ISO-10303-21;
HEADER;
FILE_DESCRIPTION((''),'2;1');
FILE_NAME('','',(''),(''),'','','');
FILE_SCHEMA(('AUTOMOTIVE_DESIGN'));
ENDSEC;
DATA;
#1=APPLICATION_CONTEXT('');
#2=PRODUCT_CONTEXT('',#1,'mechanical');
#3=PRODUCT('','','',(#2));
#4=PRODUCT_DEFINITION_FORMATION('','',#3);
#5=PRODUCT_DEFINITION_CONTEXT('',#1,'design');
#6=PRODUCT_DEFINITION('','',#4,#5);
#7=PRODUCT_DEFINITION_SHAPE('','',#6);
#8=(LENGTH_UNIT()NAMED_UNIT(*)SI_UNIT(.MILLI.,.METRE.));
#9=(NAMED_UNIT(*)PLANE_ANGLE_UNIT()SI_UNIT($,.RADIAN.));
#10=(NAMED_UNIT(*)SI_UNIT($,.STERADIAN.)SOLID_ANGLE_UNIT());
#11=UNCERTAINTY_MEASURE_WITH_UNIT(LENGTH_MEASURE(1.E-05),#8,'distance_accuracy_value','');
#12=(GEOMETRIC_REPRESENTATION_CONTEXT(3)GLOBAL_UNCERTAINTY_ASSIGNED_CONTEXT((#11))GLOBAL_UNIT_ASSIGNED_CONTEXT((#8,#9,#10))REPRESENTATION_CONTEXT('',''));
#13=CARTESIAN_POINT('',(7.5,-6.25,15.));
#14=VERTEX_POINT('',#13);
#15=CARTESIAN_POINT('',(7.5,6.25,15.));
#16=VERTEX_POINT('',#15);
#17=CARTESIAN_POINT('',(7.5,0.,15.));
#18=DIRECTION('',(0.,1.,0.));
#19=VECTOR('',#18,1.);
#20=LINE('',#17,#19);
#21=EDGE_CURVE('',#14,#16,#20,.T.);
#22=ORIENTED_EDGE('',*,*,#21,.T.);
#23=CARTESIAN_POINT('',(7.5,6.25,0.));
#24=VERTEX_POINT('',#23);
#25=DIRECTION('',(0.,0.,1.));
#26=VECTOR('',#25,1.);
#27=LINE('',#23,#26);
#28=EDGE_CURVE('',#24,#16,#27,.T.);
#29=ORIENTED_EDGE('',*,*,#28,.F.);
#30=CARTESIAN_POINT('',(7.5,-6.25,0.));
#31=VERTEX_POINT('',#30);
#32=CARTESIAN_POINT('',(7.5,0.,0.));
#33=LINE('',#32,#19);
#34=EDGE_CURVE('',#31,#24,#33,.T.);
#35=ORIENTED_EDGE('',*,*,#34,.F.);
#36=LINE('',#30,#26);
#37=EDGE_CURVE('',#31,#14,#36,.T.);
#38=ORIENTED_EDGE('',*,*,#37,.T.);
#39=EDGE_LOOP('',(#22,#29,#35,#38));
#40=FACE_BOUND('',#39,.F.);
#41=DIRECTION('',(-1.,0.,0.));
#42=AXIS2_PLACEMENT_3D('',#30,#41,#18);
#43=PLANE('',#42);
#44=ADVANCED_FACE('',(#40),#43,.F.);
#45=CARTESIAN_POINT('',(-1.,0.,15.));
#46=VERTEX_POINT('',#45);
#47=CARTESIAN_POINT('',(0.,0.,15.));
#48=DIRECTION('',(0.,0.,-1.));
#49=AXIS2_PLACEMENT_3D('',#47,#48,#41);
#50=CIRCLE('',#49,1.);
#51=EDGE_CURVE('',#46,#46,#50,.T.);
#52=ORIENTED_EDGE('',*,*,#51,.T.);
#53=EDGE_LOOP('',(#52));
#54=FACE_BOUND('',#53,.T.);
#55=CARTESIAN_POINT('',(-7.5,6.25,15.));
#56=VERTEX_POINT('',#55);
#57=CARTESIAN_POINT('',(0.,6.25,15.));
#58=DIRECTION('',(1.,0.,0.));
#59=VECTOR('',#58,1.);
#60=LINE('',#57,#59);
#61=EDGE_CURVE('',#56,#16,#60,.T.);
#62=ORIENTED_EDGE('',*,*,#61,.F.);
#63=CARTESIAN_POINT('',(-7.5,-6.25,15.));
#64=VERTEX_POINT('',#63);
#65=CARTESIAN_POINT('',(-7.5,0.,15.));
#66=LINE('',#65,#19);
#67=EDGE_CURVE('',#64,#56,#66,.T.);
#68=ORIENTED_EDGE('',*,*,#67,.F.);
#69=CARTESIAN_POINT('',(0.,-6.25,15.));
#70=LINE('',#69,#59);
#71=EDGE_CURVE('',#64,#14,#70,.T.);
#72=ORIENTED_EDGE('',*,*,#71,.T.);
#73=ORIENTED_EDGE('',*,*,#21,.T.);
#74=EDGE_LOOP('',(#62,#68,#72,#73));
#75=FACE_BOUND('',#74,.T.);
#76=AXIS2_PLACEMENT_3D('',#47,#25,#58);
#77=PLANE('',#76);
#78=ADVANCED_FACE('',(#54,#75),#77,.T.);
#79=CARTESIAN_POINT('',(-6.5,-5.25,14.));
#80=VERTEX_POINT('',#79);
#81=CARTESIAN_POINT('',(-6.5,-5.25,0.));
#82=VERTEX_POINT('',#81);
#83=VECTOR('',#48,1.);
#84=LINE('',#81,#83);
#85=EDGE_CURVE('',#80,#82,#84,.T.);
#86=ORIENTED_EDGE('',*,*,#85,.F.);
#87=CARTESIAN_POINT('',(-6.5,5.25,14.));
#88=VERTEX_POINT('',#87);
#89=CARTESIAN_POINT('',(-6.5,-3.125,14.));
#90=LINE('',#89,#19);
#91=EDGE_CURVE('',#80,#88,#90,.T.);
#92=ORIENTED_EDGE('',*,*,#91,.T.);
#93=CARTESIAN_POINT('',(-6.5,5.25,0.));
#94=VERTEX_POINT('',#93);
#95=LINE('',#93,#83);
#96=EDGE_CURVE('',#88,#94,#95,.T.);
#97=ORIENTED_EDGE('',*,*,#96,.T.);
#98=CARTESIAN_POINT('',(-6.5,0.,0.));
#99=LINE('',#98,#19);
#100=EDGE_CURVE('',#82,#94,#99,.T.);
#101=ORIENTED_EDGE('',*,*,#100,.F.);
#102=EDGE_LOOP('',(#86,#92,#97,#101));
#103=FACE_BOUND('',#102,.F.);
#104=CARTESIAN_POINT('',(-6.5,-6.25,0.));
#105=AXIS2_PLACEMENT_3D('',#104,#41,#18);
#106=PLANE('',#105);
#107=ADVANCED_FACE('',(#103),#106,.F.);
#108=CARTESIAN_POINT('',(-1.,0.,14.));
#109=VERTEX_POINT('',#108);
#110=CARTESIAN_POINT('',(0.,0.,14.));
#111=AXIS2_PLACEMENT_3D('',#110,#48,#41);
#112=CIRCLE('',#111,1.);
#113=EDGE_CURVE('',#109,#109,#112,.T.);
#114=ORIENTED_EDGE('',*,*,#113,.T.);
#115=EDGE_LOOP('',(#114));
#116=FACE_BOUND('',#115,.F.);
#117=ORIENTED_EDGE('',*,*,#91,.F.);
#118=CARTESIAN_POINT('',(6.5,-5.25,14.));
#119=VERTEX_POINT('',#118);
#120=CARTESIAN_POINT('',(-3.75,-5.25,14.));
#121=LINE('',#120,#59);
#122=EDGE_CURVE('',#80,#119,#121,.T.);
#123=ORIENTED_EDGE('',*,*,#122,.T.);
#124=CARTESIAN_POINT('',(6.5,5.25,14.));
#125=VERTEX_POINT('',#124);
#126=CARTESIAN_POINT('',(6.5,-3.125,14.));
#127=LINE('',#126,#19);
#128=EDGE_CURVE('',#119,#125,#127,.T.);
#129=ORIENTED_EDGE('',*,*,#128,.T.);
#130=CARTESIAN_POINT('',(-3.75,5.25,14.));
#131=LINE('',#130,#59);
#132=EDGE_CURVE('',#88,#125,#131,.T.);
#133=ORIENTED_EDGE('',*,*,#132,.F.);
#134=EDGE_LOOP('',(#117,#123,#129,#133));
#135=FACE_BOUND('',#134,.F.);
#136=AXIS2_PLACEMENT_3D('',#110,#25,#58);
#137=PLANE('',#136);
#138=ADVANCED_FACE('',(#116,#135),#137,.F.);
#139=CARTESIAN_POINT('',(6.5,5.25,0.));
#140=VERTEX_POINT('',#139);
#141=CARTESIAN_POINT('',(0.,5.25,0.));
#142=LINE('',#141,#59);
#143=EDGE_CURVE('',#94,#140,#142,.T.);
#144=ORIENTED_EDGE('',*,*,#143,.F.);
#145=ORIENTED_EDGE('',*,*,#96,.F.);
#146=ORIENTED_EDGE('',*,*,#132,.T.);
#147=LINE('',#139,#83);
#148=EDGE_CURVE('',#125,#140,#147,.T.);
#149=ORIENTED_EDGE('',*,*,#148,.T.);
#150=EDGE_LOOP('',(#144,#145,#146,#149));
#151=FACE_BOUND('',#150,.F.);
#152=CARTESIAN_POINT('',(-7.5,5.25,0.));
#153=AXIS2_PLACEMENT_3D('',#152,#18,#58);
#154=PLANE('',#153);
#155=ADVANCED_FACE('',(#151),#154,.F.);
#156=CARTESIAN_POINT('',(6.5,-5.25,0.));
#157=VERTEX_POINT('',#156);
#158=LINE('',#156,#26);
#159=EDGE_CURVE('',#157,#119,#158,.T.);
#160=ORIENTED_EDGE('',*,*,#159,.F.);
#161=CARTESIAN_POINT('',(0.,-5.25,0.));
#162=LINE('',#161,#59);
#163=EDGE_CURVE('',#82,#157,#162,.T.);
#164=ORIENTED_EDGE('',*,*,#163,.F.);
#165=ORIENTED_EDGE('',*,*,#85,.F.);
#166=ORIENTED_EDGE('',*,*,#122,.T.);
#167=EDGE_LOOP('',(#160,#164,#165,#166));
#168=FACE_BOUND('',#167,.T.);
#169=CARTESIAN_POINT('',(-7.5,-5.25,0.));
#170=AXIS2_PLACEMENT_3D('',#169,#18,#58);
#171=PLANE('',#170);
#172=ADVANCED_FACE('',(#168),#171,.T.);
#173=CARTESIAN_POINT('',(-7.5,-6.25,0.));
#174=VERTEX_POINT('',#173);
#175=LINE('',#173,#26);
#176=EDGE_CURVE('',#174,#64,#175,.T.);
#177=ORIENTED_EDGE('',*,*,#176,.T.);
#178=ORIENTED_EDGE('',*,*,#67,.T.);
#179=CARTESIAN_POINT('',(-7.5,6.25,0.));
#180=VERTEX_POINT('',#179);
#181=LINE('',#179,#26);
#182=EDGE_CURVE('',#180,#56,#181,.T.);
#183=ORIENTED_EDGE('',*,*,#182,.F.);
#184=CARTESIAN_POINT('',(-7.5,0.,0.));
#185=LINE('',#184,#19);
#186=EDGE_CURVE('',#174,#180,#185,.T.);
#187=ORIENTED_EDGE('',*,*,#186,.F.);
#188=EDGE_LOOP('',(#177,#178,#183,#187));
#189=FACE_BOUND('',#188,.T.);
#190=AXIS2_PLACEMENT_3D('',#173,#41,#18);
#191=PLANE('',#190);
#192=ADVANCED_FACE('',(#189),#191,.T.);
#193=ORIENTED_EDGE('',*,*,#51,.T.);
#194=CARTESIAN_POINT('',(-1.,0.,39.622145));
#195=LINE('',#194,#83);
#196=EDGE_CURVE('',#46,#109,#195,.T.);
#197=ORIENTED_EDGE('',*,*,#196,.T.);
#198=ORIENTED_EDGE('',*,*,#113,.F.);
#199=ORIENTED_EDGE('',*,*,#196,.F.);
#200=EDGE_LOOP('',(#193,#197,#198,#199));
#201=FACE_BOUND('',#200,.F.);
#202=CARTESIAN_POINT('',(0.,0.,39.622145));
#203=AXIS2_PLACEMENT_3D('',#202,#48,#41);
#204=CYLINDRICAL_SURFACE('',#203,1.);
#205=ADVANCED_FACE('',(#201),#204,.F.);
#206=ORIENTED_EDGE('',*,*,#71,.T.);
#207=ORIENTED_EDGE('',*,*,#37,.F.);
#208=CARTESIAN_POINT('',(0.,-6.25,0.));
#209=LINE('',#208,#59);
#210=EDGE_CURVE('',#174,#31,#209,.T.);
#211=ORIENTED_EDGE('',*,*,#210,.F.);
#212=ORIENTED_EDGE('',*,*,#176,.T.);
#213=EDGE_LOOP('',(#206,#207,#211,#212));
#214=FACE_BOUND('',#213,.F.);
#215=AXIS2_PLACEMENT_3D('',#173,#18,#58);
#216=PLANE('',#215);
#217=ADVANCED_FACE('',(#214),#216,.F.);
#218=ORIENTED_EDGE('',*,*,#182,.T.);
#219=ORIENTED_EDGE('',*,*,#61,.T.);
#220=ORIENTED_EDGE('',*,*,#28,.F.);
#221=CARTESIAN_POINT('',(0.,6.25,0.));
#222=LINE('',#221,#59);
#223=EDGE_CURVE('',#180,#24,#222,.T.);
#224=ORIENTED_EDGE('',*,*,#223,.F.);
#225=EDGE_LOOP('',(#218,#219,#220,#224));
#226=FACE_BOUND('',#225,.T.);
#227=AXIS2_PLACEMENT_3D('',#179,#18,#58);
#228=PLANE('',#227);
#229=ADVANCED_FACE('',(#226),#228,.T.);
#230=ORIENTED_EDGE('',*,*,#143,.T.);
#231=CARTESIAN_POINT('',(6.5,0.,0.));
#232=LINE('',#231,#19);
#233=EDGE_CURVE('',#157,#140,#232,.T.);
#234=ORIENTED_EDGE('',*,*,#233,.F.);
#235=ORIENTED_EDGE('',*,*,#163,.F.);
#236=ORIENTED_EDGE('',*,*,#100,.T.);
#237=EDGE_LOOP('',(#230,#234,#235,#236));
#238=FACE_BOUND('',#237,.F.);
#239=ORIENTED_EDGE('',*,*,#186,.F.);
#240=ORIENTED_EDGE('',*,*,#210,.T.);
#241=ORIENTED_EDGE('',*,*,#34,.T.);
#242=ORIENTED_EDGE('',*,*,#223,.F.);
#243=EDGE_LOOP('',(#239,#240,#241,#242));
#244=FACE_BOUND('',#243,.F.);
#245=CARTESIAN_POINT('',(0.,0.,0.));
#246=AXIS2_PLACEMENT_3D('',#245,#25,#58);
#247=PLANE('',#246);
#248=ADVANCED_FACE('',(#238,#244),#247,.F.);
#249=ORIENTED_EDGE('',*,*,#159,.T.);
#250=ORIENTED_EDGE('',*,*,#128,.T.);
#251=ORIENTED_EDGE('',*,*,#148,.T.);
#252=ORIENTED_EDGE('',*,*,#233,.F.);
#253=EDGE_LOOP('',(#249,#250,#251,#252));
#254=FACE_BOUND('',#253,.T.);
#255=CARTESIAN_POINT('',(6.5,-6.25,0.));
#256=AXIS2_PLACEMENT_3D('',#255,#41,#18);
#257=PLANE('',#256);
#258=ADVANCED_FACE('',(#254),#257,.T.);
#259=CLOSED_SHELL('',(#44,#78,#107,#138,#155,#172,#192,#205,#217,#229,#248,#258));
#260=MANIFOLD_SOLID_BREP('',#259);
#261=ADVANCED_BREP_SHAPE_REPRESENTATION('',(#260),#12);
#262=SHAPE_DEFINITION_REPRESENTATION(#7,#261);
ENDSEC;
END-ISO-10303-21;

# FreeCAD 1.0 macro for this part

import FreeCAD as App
import Part
import Sketcher

V = App.Vector
Q = App.Units.Quantity


def faces_at(feature, points):
    """Names of the faces that lie closest to the given points."""
    faces = feature.Shape.Faces
    near = lambda p: min(range(len(faces)), key=lambda i: faces[i].distToShape(Part.Vertex(*p))[0])
    return sorted({f"Face{near(p) + 1}" for p in points})

doc = App.newDocument("Part")
body = doc.addObject("PartDesign::Body", "Body")

# Sketch on XY plane
sketch1 = doc.addObject("Sketcher::SketchObject", "Sketch")
body.addObject(sketch1)
sketch1.AttachmentSupport = (doc.XY_Plane, [""])
sketch1.MapMode = "FlatFace"
sketch1.addGeometry(Part.LineSegment(V(-8, 6, 0), V(-8, -6, 0)), False)
sketch1.addGeometry(Part.LineSegment(V(-8, -6, 0), V(8, -6, 0)), False)
sketch1.addGeometry(Part.LineSegment(V(8, -6, 0), V(8, 6, 0)), False)
sketch1.addGeometry(Part.LineSegment(V(8, 6, 0), V(-8, 6, 0)), False)
sketch1.addConstraint(Sketcher.Constraint("Coincident", 0, 2, 1, 1))
sketch1.addConstraint(Sketcher.Constraint("Coincident", 1, 2, 2, 1))
sketch1.addConstraint(Sketcher.Constraint("Coincident", 2, 2, 3, 1))
sketch1.addConstraint(Sketcher.Constraint("Coincident", 3, 2, 0, 1))
sketch1.addConstraint(Sketcher.Constraint("Vertical", 0))
sketch1.addConstraint(Sketcher.Constraint("Horizontal", 1))
sketch1.addConstraint(Sketcher.Constraint("Vertical", 2))
sketch1.addConstraint(Sketcher.Constraint("Horizontal", 3))
sketch1.addConstraint(Sketcher.Constraint("Symmetric", 0, 2, 2, 2, -1, 1))
sketch1.addConstraint(Sketcher.Constraint("DistanceX", 1, 1, 1, 2, Q("15 mm")))
sketch1.addConstraint(Sketcher.Constraint("DistanceY", 0, 2, 0, 1, Q("12.5 mm")))
pad1 = doc.addObject("PartDesign::Pad", "Pad")
body.addObject(pad1)
pad1.Profile = sketch1
pad1.Length = 15
doc.recompute()

thickness = doc.addObject("PartDesign::Thickness", "Thickness")
body.addObject(thickness)
thickness.Base = (pad1, faces_at(pad1, [(0, 0, 0)]))
thickness.Value = 1
thickness.Reversed = True
thickness.Join = "Arc"

# Sketch on XY plane
sketch2 = doc.addObject("Sketcher::SketchObject", "Sketch001")
body.addObject(sketch2)
sketch2.AttachmentSupport = (doc.XY_Plane, [""])
sketch2.MapMode = "FlatFace"
sketch2.AttachmentOffset = App.Placement(V(0, 0, 15), App.Rotation())
sketch2.addGeometry(Part.Circle(V(0, 0, 0), V(0, 0, 1), 1), False)
sketch2.addConstraint(Sketcher.Constraint("Coincident", 0, 3, -1, 1))
sketch2.addConstraint(Sketcher.Constraint("Diameter", 0, Q("2 mm")))
doc.recompute()
hole = doc.addObject("PartDesign::Hole", "Hole")
body.addObject(hole)
hole.Profile = sketch2
hole.ThreadType = "None"
hole.Diameter = 2
hole.DepthType = "ThroughAll"

doc.recompute()
